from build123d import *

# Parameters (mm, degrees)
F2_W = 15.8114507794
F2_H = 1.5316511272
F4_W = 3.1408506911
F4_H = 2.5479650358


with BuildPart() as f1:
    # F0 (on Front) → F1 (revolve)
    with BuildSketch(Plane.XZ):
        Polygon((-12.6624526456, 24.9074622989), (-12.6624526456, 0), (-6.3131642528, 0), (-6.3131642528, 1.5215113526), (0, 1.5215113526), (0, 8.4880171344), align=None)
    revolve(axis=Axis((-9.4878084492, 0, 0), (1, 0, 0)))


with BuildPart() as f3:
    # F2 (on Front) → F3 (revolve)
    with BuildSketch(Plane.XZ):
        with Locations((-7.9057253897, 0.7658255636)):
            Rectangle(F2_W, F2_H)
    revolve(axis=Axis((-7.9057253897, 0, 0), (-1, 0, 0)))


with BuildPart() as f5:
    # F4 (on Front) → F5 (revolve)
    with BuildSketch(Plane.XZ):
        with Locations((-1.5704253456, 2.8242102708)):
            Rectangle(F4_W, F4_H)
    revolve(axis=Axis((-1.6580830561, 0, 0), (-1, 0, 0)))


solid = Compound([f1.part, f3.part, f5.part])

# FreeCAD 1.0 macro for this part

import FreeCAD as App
import Part
import Sketcher
from FreeCAD import Vector


def add_polygon(sketch, points):
    """Adds a closed chain of lines whose ends are joined by coincident constraints."""
    first, n = sketch.GeometryCount, len(points)
    for a, b in zip(points, points[1:] + points[:1]):
        sketch.addGeometry(Part.LineSegment(App.Vector(*a, 0), App.Vector(*b, 0)), False)
    for i in range(n):
        sketch.addConstraint(Sketcher.Constraint("Coincident", first + i, 2, first + (i + 1) % n, 1))

doc = App.newDocument("Part")
params = doc.addObject("Spreadsheet::Sheet", "Params")
for row, (alias, value) in enumerate([
    ("revolution_angle", "360 deg"),
    ("revolution2_angle", "360 deg"),
    ("revolution3_angle", "360 deg"),
], start=1):
    params.set(f"A{row}", alias)
    params.set(f"B{row}", "=" + value)
    params.setAlias(f"B{row}", alias)

body = doc.addObject("PartDesign::Body", "Body")

# Sketch on XZ plane
sketch1 = body.newObject("Sketcher::SketchObject", "Sketch")
sketch1.AttachmentSupport = (doc.getObject("XZ_Plane"), [""])
sketch1.MapMode = "FlatFace"
add_polygon(sketch1, [(-12.662453, 24.907462), (-12.662453, 0), (-6.313164, 0), (-6.313164, 1.521511), (0, 1.521511), (0, 8.488017)])  # lines 0-5
sketch1.addConstraint(Sketcher.Constraint("Vertical", 0))
sketch1.addConstraint(Sketcher.Constraint("Horizontal", 1))
sketch1.addConstraint(Sketcher.Constraint("Vertical", 2))
sketch1.addConstraint(Sketcher.Constraint("Horizontal", 3))
sketch1.addConstraint(Sketcher.Constraint("Vertical", 4))
sketch1.addConstraint(Sketcher.Constraint("PointOnObject", 0, 2, -1))
sketch1.addConstraint(Sketcher.Constraint("PointOnObject", 3, 2, -2))
sketch1.addConstraint(Sketcher.Constraint("DistanceX", 1, 1, 1, 2, 6.349288))
sketch1.addConstraint(Sketcher.Constraint("DistanceY", 2, 1, 2, 2, 1.521511))
sketch1.addConstraint(Sketcher.Constraint("DistanceX", 3, 1, 3, 2, 6.313164))
sketch1.addConstraint(Sketcher.Constraint("DistanceY", 0, 2, 0, 1, 24.907462))
sketch1.addConstraint(Sketcher.Constraint("DistanceY", 4, 1, 4, 2, 6.966506))
revolution = body.newObject("PartDesign::Revolution", "Revolution")
revolution.Profile = sketch1
revolution.ReferenceAxis = (sketch1, ["H_Axis"])
revolution.setExpression("Angle", "Params.revolution_angle")
body2 = doc.addObject("PartDesign::Body", "Body001")

# Sketch on XZ plane
sketch2 = body2.newObject("Sketcher::SketchObject", "Sketch001")
sketch2.AttachmentSupport = (doc.getObject("XZ_Plane001"), [""])
sketch2.MapMode = "FlatFace"
add_polygon(sketch2, [(-15.811451, 1.531651), (-15.811451, 0), (0, 0), (0, 1.531651)])  # lines 0-3
sketch2.addConstraint(Sketcher.Constraint("Vertical", 0))
sketch2.addConstraint(Sketcher.Constraint("Horizontal", 1))
sketch2.addConstraint(Sketcher.Constraint("Vertical", 2))
sketch2.addConstraint(Sketcher.Constraint("Horizontal", 3))
sketch2.addConstraint(Sketcher.Constraint("Coincident", 1, 2, -1, 1))
sketch2.addConstraint(Sketcher.Constraint("DistanceX", 1, 1, 1, 2, 15.811451))
sketch2.addConstraint(Sketcher.Constraint("DistanceY", 0, 2, 0, 1, 1.531651))
revolution2 = body2.newObject("PartDesign::Revolution", "Revolution001")
revolution2.Profile = sketch2
revolution2.ReferenceAxis = (sketch2, ["H_Axis"])
revolution2.setExpression("Angle", "Params.revolution2_angle")
body3 = doc.addObject("PartDesign::Body", "Body002")

# Sketch on XZ plane
sketch3 = body3.newObject("Sketcher::SketchObject", "Sketch002")
sketch3.AttachmentSupport = (doc.getObject("XZ_Plane002"), [""])
sketch3.MapMode = "FlatFace"
add_polygon(sketch3, [(-3.140851, 4.098193), (-3.140851, 1.550228), (0, 1.550228), (0, 4.098193)])  # lines 0-3
sketch3.addConstraint(Sketcher.Constraint("Vertical", 0))
sketch3.addConstraint(Sketcher.Constraint("Horizontal", 1))
sketch3.addConstraint(Sketcher.Constraint("Vertical", 2))
sketch3.addConstraint(Sketcher.Constraint("Horizontal", 3))
sketch3.addConstraint(Sketcher.Constraint("PointOnObject", 1, 2, -2))
sketch3.addConstraint(Sketcher.Constraint("DistanceX", 1, 1, 1, 2, 3.140851))
sketch3.addConstraint(Sketcher.Constraint("DistanceY", 0, 2, 0, 1, 2.547965))
sketch3.addConstraint(Sketcher.Constraint("DistanceY", -1, 1, 0, 2, 1.550228))
revolution3 = body3.newObject("PartDesign::Revolution", "Revolution002")
revolution3.Profile = sketch3
revolution3.ReferenceAxis = (sketch3, ["H_Axis"])
revolution3.setExpression("Angle", "Params.revolution3_angle")

doc.recompute()
